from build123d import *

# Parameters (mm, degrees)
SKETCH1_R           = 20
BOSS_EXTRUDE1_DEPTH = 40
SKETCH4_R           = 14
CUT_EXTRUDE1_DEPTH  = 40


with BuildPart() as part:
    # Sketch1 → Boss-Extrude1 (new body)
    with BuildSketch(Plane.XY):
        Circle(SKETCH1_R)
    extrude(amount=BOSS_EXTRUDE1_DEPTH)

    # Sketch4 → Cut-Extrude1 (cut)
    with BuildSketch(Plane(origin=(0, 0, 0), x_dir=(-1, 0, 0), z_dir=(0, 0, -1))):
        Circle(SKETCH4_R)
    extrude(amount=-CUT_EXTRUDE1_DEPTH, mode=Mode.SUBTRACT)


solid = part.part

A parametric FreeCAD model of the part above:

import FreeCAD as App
import Part
import Sketcher

V = App.Vector

doc = App.newDocument("Part")
body = doc.addObject("PartDesign::Body", "Body")

# Sketch on XY plane
sketch1 = body.newObject("Sketcher::SketchObject", "Sketch")
sketch1.AttachmentSupport = (doc.getObject("XY_Plane"), [""])
sketch1.MapMode = "FlatFace"
sketch1.addGeometry(Part.Circle(V(0, 0, 0), V(0, 0, 1), 20), False)
sketch1.addConstraint([
    Sketcher.Constraint("Coincident", 0, 3, -1, 1),
    Sketcher.Constraint("Diameter", 0, 40.0),
])
pad1 = body.newObject("PartDesign::Pad", "Pad")
pad1.Profile = sketch1
pad1.Length = 40

# Sketch on XY plane
sketch2 = body.newObject("Sketcher::SketchObject", "Sketch001")
sketch2.AttachmentSupport = (doc.getObject("XY_Plane"), [""])
sketch2.MapMode = "FlatFace"
sketch2.addGeometry(Part.Circle(V(0, 0, 0), V(0, 0, 1), 14), False)
sketch2.addConstraint([
    Sketcher.Constraint("Coincident", 0, 3, -1, 1),
    Sketcher.Constraint("Diameter", 0, 28.0),
])
pocket1 = body.newObject("PartDesign::Pocket", "Pocket")
pocket1.Profile = sketch2
pocket1.Length = 40
pocket1.Reversed = True

doc.recompute()
